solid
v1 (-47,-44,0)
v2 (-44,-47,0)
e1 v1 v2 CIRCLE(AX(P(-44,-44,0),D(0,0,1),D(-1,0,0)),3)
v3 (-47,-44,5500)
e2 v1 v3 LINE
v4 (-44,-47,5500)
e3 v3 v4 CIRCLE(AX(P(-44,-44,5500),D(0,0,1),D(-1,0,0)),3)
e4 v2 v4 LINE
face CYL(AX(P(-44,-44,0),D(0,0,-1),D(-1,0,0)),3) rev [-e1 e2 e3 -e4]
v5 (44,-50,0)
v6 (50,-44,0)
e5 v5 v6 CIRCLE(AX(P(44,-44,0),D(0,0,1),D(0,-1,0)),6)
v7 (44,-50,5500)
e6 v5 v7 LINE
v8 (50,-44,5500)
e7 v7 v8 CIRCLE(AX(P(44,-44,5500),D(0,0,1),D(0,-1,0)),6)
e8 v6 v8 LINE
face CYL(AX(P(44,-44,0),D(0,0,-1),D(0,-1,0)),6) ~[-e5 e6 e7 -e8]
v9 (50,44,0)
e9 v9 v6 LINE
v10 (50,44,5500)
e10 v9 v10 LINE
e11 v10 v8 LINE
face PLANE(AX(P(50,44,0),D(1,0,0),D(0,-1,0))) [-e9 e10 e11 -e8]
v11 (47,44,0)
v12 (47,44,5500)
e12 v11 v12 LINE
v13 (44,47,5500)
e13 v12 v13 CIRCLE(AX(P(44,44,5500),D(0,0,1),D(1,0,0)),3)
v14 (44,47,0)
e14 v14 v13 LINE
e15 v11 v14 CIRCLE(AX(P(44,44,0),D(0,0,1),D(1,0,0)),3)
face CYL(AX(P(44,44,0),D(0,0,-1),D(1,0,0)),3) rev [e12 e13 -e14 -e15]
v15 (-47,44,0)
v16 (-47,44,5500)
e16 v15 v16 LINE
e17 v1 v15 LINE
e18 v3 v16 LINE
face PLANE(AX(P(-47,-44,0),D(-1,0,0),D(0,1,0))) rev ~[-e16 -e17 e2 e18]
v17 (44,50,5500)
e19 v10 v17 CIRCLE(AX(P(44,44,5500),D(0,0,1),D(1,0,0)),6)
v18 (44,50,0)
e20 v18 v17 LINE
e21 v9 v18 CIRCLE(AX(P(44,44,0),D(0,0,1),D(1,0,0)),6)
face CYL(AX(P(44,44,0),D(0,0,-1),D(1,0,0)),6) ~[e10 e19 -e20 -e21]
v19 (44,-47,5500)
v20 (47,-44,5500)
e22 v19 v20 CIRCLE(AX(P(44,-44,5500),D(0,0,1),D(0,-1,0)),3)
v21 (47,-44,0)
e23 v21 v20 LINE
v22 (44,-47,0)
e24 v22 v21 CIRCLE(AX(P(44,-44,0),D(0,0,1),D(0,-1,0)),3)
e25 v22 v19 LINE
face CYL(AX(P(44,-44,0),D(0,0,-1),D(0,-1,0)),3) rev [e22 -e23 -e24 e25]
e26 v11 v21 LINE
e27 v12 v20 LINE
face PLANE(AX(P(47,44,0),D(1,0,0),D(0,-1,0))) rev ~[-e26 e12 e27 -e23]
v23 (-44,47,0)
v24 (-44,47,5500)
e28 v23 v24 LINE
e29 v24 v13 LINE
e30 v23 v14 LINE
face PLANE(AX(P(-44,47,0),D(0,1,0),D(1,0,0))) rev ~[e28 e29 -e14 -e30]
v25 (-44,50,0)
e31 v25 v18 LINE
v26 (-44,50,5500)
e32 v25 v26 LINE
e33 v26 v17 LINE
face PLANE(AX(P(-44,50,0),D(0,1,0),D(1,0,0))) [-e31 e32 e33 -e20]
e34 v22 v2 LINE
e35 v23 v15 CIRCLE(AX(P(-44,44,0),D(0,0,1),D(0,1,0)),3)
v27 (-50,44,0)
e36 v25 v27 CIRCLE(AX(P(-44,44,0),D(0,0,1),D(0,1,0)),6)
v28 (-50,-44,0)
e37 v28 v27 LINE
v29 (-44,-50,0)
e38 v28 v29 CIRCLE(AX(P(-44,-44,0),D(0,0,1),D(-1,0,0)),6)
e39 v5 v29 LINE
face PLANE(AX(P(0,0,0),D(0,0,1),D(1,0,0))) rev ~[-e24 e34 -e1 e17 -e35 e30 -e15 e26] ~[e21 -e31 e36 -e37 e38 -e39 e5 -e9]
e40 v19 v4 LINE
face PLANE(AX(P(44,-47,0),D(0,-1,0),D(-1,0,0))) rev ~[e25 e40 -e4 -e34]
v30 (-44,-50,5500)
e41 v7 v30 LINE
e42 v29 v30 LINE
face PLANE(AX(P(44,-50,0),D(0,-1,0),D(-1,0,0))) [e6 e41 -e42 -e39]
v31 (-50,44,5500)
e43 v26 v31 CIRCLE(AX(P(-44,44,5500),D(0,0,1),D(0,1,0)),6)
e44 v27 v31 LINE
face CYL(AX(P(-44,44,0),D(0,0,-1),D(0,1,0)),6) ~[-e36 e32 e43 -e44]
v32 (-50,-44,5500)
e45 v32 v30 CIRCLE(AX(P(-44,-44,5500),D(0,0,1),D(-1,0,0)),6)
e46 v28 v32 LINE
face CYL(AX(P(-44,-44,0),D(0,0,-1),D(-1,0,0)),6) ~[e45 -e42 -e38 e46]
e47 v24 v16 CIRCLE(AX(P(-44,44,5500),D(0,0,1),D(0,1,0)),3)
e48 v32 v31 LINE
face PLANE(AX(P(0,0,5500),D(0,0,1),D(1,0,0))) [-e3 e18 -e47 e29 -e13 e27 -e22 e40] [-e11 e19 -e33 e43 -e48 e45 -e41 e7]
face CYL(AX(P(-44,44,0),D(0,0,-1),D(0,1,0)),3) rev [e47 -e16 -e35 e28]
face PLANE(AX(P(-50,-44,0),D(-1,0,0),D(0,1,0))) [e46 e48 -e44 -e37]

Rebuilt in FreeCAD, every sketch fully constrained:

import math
import FreeCAD as App
import Part
import Sketcher

V = App.Vector

doc = App.newDocument("Part")
body = doc.addObject("PartDesign::Body", "Body")

sketch1 = body.newObject("Sketcher::SketchObject", "Sketch")
sketch1.AttachmentSupport = (doc.getObject("XY_Plane"), [""])
sketch1.MapMode = "FlatFace"
sketch1.addGeometry([
    Part.LineSegment(V(-50, 44, 0), V(-50, -44, 0)),
    Part.ArcOfCircle(Part.Circle(V(-44, -44, 0), V(0, 0, 1), 6), math.radians(180), math.radians(270)),
    Part.LineSegment(V(-44, -50, 0), V(44, -50, 0)),
    Part.ArcOfCircle(Part.Circle(V(44, -44, 0), V(0, 0, 1), 6), math.radians(-90), math.radians(0)),
    Part.LineSegment(V(50, -44, 0), V(50, 44, 0)),
    Part.ArcOfCircle(Part.Circle(V(44, 44, 0), V(0, 0, 1), 6), math.radians(0), math.radians(90)),
    Part.LineSegment(V(44, 50, 0), V(-44, 50, 0)),
    Part.ArcOfCircle(Part.Circle(V(-44, 44, 0), V(0, 0, 1), 6), math.radians(90), math.radians(180)),
    Part.ArcOfCircle(Part.Circle(V(-44, 44, 0), V(0, 0, 1), 3), math.radians(90), math.radians(180)),
    Part.LineSegment(V(-44, 47, 0), V(44, 47, 0)),
    Part.ArcOfCircle(Part.Circle(V(44, 44, 0), V(0, 0, 1), 3), math.radians(0), math.radians(90)),
    Part.LineSegment(V(47, 44, 0), V(47, -44, 0)),
    Part.ArcOfCircle(Part.Circle(V(44, -44, 0), V(0, 0, 1), 3), math.radians(-90), math.radians(0)),
    Part.LineSegment(V(44, -47, 0), V(-44, -47, 0)),
    Part.ArcOfCircle(Part.Circle(V(-44, -44, 0), V(0, 0, 1), 3), math.radians(180), math.radians(270)),
    Part.LineSegment(V(-47, -44, 0), V(-47, 44, 0)),
], False)
sketch1.addConstraint([
    Sketcher.Constraint("Tangent", 0, 2, 1, 1),
    Sketcher.Constraint("Tangent", 1, 2, 2, 1),
    Sketcher.Constraint("Tangent", 2, 2, 3, 1),
    Sketcher.Constraint("Tangent", 3, 2, 4, 1),
    Sketcher.Constraint("Tangent", 4, 2, 5, 1),
    Sketcher.Constraint("Tangent", 5, 2, 6, 1),
    Sketcher.Constraint("Tangent", 6, 2, 7, 1),
    Sketcher.Constraint("Tangent", 7, 2, 0, 1),
    Sketcher.Constraint("Tangent", 8, 1, 9, 1),
    Sketcher.Constraint("Tangent", 9, 2, 10, 2),
    Sketcher.Constraint("Tangent", 10, 1, 11, 1),
    Sketcher.Constraint("Tangent", 11, 2, 12, 2),
    Sketcher.Constraint("Tangent", 12, 1, 13, 1),
    Sketcher.Constraint("Tangent", 13, 2, 14, 2),
    Sketcher.Constraint("Tangent", 14, 1, 15, 1),
    Sketcher.Constraint("Tangent", 15, 2, 8, 2),
    Sketcher.Constraint("Vertical", 0),
    Sketcher.Constraint("Horizontal", 2),
    Sketcher.Constraint("Vertical", 4),
    Sketcher.Constraint("Horizontal", 6),
    Sketcher.Constraint("Horizontal", 9),
    Sketcher.Constraint("Vertical", 11),
    Sketcher.Constraint("Horizontal", 13),
    Sketcher.Constraint("Vertical", 15),
    Sketcher.Constraint("Coincident", 8, 3, 7, 3),
    Sketcher.Constraint("Coincident", 10, 3, 5, 3),
    Sketcher.Constraint("Coincident", 12, 3, 3, 3),
    Sketcher.Constraint("Equal", 1, 3),
    Sketcher.Constraint("Equal", 3, 5),
    Sketcher.Constraint("Equal", 5, 7),
    Sketcher.Constraint("Equal", 12, 14),
    Sketcher.Constraint("Symmetric", 1, 3, 5, 3, -1, 1),
    Sketcher.Constraint("Equal", 13, 0),
    Sketcher.Constraint("Radius", 1, 6.0),
    Sketcher.Constraint("Radius", 8, 3.0),
    Sketcher.Constraint("DistanceX", 0, 2, -1, 1, 50.0),
])
pad1 = body.newObject("PartDesign::Pad", "Pad")
pad1.Profile = sketch1
pad1.Length = 5500

doc.recompute()
